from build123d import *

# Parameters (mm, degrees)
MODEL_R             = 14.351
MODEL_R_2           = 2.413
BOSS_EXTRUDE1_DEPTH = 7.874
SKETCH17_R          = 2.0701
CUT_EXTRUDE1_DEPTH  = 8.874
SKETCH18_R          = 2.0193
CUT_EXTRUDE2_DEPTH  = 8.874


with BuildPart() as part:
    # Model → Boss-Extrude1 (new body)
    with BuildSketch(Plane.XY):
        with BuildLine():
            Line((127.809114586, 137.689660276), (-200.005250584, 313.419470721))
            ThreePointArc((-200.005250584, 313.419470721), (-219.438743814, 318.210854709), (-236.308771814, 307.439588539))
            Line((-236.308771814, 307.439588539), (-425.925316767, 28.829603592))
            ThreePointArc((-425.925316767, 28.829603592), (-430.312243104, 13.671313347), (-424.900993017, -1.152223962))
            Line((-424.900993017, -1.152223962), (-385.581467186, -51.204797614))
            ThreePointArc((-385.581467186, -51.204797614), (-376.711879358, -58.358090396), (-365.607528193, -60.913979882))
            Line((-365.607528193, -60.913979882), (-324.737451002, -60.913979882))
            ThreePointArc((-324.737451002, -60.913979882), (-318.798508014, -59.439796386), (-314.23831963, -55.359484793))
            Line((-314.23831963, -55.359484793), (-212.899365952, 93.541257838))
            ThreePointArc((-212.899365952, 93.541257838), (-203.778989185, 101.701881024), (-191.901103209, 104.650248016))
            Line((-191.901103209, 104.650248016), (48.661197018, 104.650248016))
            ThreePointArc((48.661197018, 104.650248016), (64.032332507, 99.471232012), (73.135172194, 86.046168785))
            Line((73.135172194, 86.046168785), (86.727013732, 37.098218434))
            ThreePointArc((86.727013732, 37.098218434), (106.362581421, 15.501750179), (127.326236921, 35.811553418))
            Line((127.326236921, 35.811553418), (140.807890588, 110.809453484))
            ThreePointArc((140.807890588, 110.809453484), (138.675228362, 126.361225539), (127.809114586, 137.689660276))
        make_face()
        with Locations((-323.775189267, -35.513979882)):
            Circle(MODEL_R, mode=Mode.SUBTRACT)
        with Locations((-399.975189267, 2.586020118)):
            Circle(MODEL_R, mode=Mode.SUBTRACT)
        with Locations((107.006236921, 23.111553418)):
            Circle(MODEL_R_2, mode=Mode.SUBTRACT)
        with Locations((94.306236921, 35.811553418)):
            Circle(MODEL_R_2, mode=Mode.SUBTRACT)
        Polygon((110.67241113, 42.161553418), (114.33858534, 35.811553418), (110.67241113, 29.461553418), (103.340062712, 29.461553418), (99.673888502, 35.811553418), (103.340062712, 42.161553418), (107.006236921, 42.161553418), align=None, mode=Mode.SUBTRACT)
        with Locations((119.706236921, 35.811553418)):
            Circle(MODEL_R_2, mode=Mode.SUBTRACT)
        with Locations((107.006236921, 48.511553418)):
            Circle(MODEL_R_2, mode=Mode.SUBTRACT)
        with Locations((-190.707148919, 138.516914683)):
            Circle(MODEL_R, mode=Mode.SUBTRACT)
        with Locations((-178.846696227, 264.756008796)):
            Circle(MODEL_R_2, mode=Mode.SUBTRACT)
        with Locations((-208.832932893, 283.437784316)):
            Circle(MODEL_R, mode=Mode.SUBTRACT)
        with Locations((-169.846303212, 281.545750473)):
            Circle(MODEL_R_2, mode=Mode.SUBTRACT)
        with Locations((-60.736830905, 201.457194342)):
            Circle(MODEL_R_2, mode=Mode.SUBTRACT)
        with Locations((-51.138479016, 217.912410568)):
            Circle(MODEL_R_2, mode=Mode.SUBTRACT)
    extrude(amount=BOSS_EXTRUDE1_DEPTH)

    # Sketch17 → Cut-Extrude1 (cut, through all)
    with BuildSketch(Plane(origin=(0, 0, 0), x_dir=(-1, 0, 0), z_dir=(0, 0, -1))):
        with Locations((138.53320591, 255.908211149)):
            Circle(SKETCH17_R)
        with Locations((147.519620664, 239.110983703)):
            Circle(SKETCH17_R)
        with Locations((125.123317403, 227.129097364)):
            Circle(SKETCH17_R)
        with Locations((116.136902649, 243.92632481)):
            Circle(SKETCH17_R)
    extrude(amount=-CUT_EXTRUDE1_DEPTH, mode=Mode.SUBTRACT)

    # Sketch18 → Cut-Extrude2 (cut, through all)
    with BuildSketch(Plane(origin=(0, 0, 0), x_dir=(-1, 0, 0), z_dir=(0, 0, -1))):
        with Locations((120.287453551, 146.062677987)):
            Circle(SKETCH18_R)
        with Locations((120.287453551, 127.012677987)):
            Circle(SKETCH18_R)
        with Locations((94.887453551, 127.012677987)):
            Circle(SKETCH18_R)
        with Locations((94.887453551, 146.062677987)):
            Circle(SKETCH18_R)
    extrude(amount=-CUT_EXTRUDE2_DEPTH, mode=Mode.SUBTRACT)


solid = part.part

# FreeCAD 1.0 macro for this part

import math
import FreeCAD as App
import Part
import Sketcher
from FreeCAD import Vector
Q = App.Units.Quantity


def add_polygon(sketch, points):
    """Adds a closed chain of lines whose ends are joined by coincident constraints."""
    first, n = sketch.GeometryCount, len(points)
    for a, b in zip(points, points[1:] + points[:1]):
        sketch.addGeometry(Part.LineSegment(App.Vector(*a, 0), App.Vector(*b, 0)), False)
    for i in range(n):
        sketch.addConstraint(Sketcher.Constraint("Coincident", first + i, 2, first + (i + 1) % n, 1))

doc = App.newDocument("Part")
body = doc.addObject("PartDesign::Body", "Body")

sketch1 = body.newObject("Sketcher::SketchObject", "Sketch")
sketch1.AttachmentSupport = (doc.getObject("XY_Plane"), [""])
sketch1.MapMode = "FlatFace"
sketch1.addGeometry(Part.LineSegment(Vector(127.8, 137.7, 0), Vector(-200, 313.4, 0)), False)
sketch1.addGeometry(Part.ArcOfCircle(Part.Circle(Vector(-215.3, 293.1, 0), Vector(0, 0, 1), 25.4), math.radians(53), math.radians(146)), False)
sketch1.addGeometry(Part.LineSegment(Vector(-236.3, 307.4, 0), Vector(-425.9, 28.8, 0)), False)
sketch1.addGeometry(Part.ArcOfCircle(Part.Circle(Vector(-404.9, 14.5, 0), Vector(0, 0, 1), 25.4), math.radians(146), math.radians(218)), False)
sketch1.addGeometry(Part.LineSegment(Vector(-424.9, -1.2, 0), Vector(-385.6, -51.2, 0)), False)
sketch1.addGeometry(Part.ArcOfCircle(Part.Circle(Vector(-365.6, -35.5, 0), Vector(0, 0, 1), 25.4), math.radians(-142), math.radians(-90)), False)
sketch1.addGeometry(Part.LineSegment(Vector(-365.6, -60.9, 0), Vector(-324.7, -60.9, 0)), False)
sketch1.addGeometry(Part.ArcOfCircle(Part.Circle(Vector(-324.7, -48.2, 0), Vector(0, 0, 1), 12.7), math.radians(-90), math.radians(-34)), False)
sketch1.addGeometry(Part.LineSegment(Vector(-314.2, -55.4, 0), Vector(-212.9, 93.5, 0)), False)
sketch1.addGeometry(Part.ArcOfCircle(Part.Circle(Vector(-191.9, 79.3, 0), Vector(0, 0, 1), 25.4), math.radians(90), math.radians(146)), False)
sketch1.addGeometry(Part.LineSegment(Vector(-191.9, 104.7, 0), Vector(48.7, 104.7, 0)), False)
sketch1.addGeometry(Part.ArcOfCircle(Part.Circle(Vector(48.7, 79.3, 0), Vector(0, 0, 1), 25.4), math.radians(16), math.radians(90)), False)
sketch1.addGeometry(Part.LineSegment(Vector(73.1, 86, 0), Vector(86.7, 37.1, 0)), False)
sketch1.addGeometry(Part.ArcOfCircle(Part.Circle(Vector(107, 35.8, 0), Vector(0, 0, 1), 20.3), math.radians(176), math.radians(360)), False)
sketch1.addGeometry(Part.LineSegment(Vector(127.3, 35.8, 0), Vector(140.8, 110.8, 0)), False)
sketch1.addGeometry(Part.ArcOfCircle(Part.Circle(Vector(115.8, 115.3, 0), Vector(0, 0, 1), 25.4), math.radians(-10), math.radians(62)), False)
sketch1.addGeometry(Part.Circle(Vector(-323.8, -35.5, 0), Vector(0, 0, 1), 14.4), False)
sketch1.addGeometry(Part.Circle(Vector(-400, 2.6, 0), Vector(0, 0, 1), 14.4), False)
sketch1.addGeometry(Part.Circle(Vector(107, 23.1, 0), Vector(0, 0, 1), 2.4), False)
sketch1.addGeometry(Part.Circle(Vector(94.3, 35.8, 0), Vector(0, 0, 1), 2.4), False)
add_polygon(sketch1, [(103.3, 42.2), (110.7, 42.2), (114.3, 35.8), (110.7, 29.5), (103.3, 29.5), (99.7, 35.8)])
sketch1.addGeometry(Part.Circle(Vector(119.7, 35.8, 0), Vector(0, 0, 1), 2.4), False)
sketch1.addGeometry(Part.Circle(Vector(107, 48.5, 0), Vector(0, 0, 1), 2.4), False)
sketch1.addGeometry(Part.Circle(Vector(-190.7, 138.5, 0), Vector(0, 0, 1), 14.4), False)
sketch1.addGeometry(Part.Circle(Vector(-178.8, 264.8, 0), Vector(0, 0, 1), 2.4), False)
sketch1.addGeometry(Part.Circle(Vector(-208.8, 283.4, 0), Vector(0, 0, 1), 14.4), False)
sketch1.addGeometry(Part.Circle(Vector(-169.8, 281.5, 0), Vector(0, 0, 1), 2.4), False)
sketch1.addGeometry(Part.Circle(Vector(-60.7, 201.5, 0), Vector(0, 0, 1), 2.4), False)
sketch1.addGeometry(Part.Circle(Vector(-51.1, 217.9, 0), Vector(0, 0, 1), 2.4), False)
sketch1.addConstraint([
    Sketcher.Constraint("Coincident", 0, 2, 1, 1),
    Sketcher.Constraint("Tangent", 1, 2, 2, 1),
    Sketcher.Constraint("Tangent", 2, 2, 3, 1),
    Sketcher.Constraint("Tangent", 3, 2, 4, 1),
    Sketcher.Constraint("Tangent", 4, 2, 5, 1),
    Sketcher.Constraint("Tangent", 5, 2, 6, 1),
    Sketcher.Constraint("Tangent", 6, 2, 7, 1),
    Sketcher.Constraint("Tangent", 7, 2, 8, 1),
    Sketcher.Constraint("Tangent", 8, 2, 9, 2),
    Sketcher.Constraint("Tangent", 9, 1, 10, 1),
    Sketcher.Constraint("Tangent", 10, 2, 11, 2),
    Sketcher.Constraint("Tangent", 11, 1, 12, 1),
    Sketcher.Constraint("Coincident", 12, 2, 13, 1),
    Sketcher.Constraint("Coincident", 13, 2, 14, 1),
    Sketcher.Constraint("Tangent", 14, 2, 15, 1),
    Sketcher.Constraint("Tangent", 15, 2, 0, 1),
    Sketcher.Constraint("Horizontal", 6),
    Sketcher.Constraint("Horizontal", 10),
    Sketcher.Constraint("Horizontal", 20),
    Sketcher.Constraint("Horizontal", 23),
    Sketcher.Constraint("Equal", 1, 3),
    Sketcher.Constraint("Equal", 3, 5),
    Sketcher.Constraint("Equal", 5, 9),
    Sketcher.Constraint("Equal", 9, 11),
    Sketcher.Constraint("Equal", 11, 15),
    Sketcher.Constraint("Equal", 16, 17),
    Sketcher.Constraint("Equal", 18, 19),
    Sketcher.Constraint("Equal", 19, 26),
    Sketcher.Constraint("Equal", 26, 27),
    Sketcher.Constraint("Equal", 17, 28),
    Sketcher.Constraint("Equal", 27, 29),
    Sketcher.Constraint("Equal", 28, 30),
    Sketcher.Constraint("Equal", 29, 31),
    Sketcher.Constraint("Equal", 31, 32),
    Sketcher.Constraint("Equal", 32, 33),
    Sketcher.Constraint("Parallel", 2, 8),
    Sketcher.Constraint("Parallel", 21, 24),
    Sketcher.Constraint("Parallel", 22, 25),
    Sketcher.Constraint("Horizontal", 5, 3, 16, 3),
    Sketcher.Constraint("Horizontal", 13, 3, 19, 3),
    Sketcher.Constraint("Horizontal", 19, 3, 26, 3),
    Sketcher.Constraint("Horizontal", 26, 3, 13, 2),
    Sketcher.Constraint("Horizontal", 13, 2, 21, 2),
    Sketcher.Constraint("Horizontal", 21, 2, 24, 2),
    Sketcher.Constraint("Vertical", 13, 3, 18, 3),
    Sketcher.Constraint("Vertical", 18, 3, 27, 3),
    Sketcher.Constraint("Vertical", 20, 2, 22, 2),
    Sketcher.Constraint("Vertical", 23, 2, 25, 2),
    Sketcher.Constraint("Radius", 1, Q("1 in")),
    Sketcher.Constraint("Radius", 7, Q("0.5 in")),
    Sketcher.Constraint("Radius", 13, Q("0.8 in")),
    Sketcher.Constraint("Diameter", 16, Q("1.13 in")),
    Sketcher.Constraint("Diameter", 18, Q("0.19 in")),
    Sketcher.Constraint("Distance", 12, Q("2 in")),
    Sketcher.Constraint("Distance", 14, Q("3 in")),
    Sketcher.Constraint("Angle", 21, Q("-60 deg")),
    Sketcher.Constraint("DistanceX", 17, 3, 16, 3, Q("3 in")),
    Sketcher.Constraint("DistanceY", 7, 3, 17, 3, Q("2 in")),
    Sketcher.Constraint("DistanceX", 19, 3, 26, 3, Q("1 in")),
    Sketcher.Constraint("DistanceY", 18, 3, 27, 3, Q("1 in")),
    Sketcher.Constraint("DistanceY", 18, 3, 13, 3, Q("0.5 in")),
    Sketcher.Constraint("DistanceX", 19, 3, 13, 3, Q("0.5 in")),
    Sketcher.Constraint("DistanceY", 22, 2, 20, 2, Q("0.5 in")),
    Sketcher.Constraint("DistanceX", 10, 1, 10, 2, Q("240.5623 mm")),
    Sketcher.Constraint("DistanceX", 20, 1, 20, 2, Q("7.332348 mm")),
    Sketcher.Constraint("DistanceX", 1, 3, 15, 3, Q("331.1191 mm")),
    Sketcher.Constraint("DistanceX", 9, 3, 31, 3, Q("22.0548 mm")),
    Sketcher.Constraint("DistanceX", 30, 3, 32, 3, Q("148.096102 mm")),
    Sketcher.Constraint("DistanceY", 33, 3, 29, 3, Q("46.843598 mm")),
    Sketcher.Constraint("DistanceX", 0, 2, 28, 3, Q("9.298102 mm")),
    Sketcher.Constraint("DistanceX", 15, 3, 14, 2, Q("24.9993 mm")),
    Sketcher.Constraint("Distance", 0, Q("371.94519 mm")),
    Sketcher.Constraint("Distance", 2, Q("337.01329 mm")),
    Sketcher.Constraint("DistanceX", 6, 1, 6, 2, Q("40.870077 mm")),
    Sketcher.Constraint("DistanceX", 1, 3, -1, 1, Q("215.310509 mm")),
    Sketcher.Constraint("DistanceY", -1, 1, 1, 3, Q("293.148579 mm")),
    Sketcher.Constraint("DistanceX", 5, 3, -1, 1, Q("365.607528 mm")),
    Sketcher.Constraint("DistanceY", 5, 3, -1, 1, Q("35.51398 mm")),
    Sketcher.Constraint("DistanceY", -1, 1, 9, 3, Q("79.250248 mm")),
    Sketcher.Constraint("DistanceY", -1, 1, 15, 3, Q("115.303338 mm")),
    Sketcher.Constraint("DistanceX", 16, 3, -1, 1, Q("323.775189 mm")),
    Sketcher.Constraint("DistanceY", -1, 1, 29, 3, Q("264.756009 mm")),
    Sketcher.Constraint("DistanceY", -1, 1, 31, 3, Q("281.54575 mm")),
    Sketcher.Constraint("DistanceX", 32, 3, -1, 1, Q("60.736831 mm")),
    Sketcher.Constraint("DistanceX", 33, 3, -1, 1, Q("51.138479 mm")),
    Sketcher.Constraint("DistanceY", -1, 1, 11, 1, Q("86.046169 mm")),
    Sketcher.Constraint("DistanceX", -1, 1, 20, 2, Q("110.672411 mm")),
    Sketcher.Constraint("DistanceY", 28, 3, 30, 3, Q("144.92087 mm")),
    Sketcher.Constraint("DistanceY", 28, 3, 32, 3, Q("62.94028 mm")),
    Sketcher.Constraint("DistanceX", 8, 2, 29, 3, Q("34.05267 mm")),
    Sketcher.Constraint("DistanceY", -1, 1, 28, 3, Q("138.516915 mm")),
])
pad1 = body.newObject("PartDesign::Pad", "Pad")
pad1.Profile = sketch1
pad1.Length = Q("0.31 in")

sketch2 = body.newObject("Sketcher::SketchObject", "Sketch001")
sketch2.AttachmentSupport = (doc.getObject("XY_Plane"), [""])
sketch2.MapMode = "FlatFace"
sketch2.addGeometry([
    Part.Circle(Vector(-138.5, 255.9, 0), Vector(0, 0, 1), 2.1),
    Part.Circle(Vector(-147.5, 239.1, 0), Vector(0, 0, 1), 2.1),
    Part.Circle(Vector(-125.1, 227.1, 0), Vector(0, 0, 1), 2.1),
    Part.Circle(Vector(-116.1, 243.9, 0), Vector(0, 0, 1), 2.1),
], False)
sketch2.addConstraint([
    Sketcher.Constraint("Equal", 0, 1),
    Sketcher.Constraint("Equal", 1, 2),
    Sketcher.Constraint("Equal", 2, 3),
    Sketcher.Constraint("Diameter", 0, Q("0.163 in")),
    Sketcher.Constraint("DistanceY", -1, 1, 0, 3, Q("255.908211 mm")),
    Sketcher.Constraint("DistanceX", 1, 3, -1, 1, Q("147.519621 mm")),
    Sketcher.Constraint("DistanceX", 0, 3, 2, 3, Q("13.409889 mm")),
    Sketcher.Constraint("DistanceX", 1, 3, 3, 3, Q("31.382718 mm")),
    Sketcher.Constraint("DistanceY", 1, 3, 3, 3, Q("4.815341 mm")),
    Sketcher.Constraint("DistanceX", 0, 3, -1, 1, Q("138.533206 mm")),
    Sketcher.Constraint("DistanceY", -1, 1, 1, 3, Q("239.110984 mm")),
    Sketcher.Constraint("DistanceY", -1, 1, 2, 3, Q("227.129097 mm")),
])
pocket1 = body.newObject("PartDesign::Pocket", "Pocket")
pocket1.Profile = sketch2
pocket1.Type = "ThroughAll"
pocket1.Reversed = True

sketch3 = body.newObject("Sketcher::SketchObject", "Sketch002")
sketch3.AttachmentSupport = (doc.getObject("XY_Plane"), [""])
sketch3.MapMode = "FlatFace"
sketch3.addGeometry([
    Part.Circle(Vector(-120.3, 146.1, 0), Vector(0, 0, 1), 2),
    Part.Circle(Vector(-120.3, 127, 0), Vector(0, 0, 1), 2),
    Part.Circle(Vector(-94.9, 127, 0), Vector(0, 0, 1), 2),
    Part.Circle(Vector(-94.9, 146.1, 0), Vector(0, 0, 1), 2),
], False)
sketch3.addConstraint([
    Sketcher.Constraint("Equal", 0, 1),
    Sketcher.Constraint("Equal", 1, 2),
    Sketcher.Constraint("Equal", 2, 3),
    Sketcher.Constraint("Horizontal", 1, 3, 2, 3),
    Sketcher.Constraint("Horizontal", 0, 3, 3, 3),
    Sketcher.Constraint("Vertical", 0, 3, 1, 3),
    Sketcher.Constraint("Vertical", 2, 3, 3, 3),
    Sketcher.Constraint("Diameter", 0, Q("0.159 in")),
    Sketcher.Constraint("DistanceX", 1, 3, 2, 3, Q("1 in")),
    Sketcher.Constraint("DistanceY", 1, 3, 0, 3, Q("0.75 in")),
    Sketcher.Constraint("DistanceX", 0, 3, -1, 1, Q("120.287454 mm")),
    Sketcher.Constraint("DistanceY", -1, 1, 0, 3, Q("146.062678 mm")),
])
pocket2 = body.newObject("PartDesign::Pocket", "Pocket001")
pocket2.Profile = sketch3
pocket2.Type = "ThroughAll"
pocket2.Reversed = True

doc.recompute()
